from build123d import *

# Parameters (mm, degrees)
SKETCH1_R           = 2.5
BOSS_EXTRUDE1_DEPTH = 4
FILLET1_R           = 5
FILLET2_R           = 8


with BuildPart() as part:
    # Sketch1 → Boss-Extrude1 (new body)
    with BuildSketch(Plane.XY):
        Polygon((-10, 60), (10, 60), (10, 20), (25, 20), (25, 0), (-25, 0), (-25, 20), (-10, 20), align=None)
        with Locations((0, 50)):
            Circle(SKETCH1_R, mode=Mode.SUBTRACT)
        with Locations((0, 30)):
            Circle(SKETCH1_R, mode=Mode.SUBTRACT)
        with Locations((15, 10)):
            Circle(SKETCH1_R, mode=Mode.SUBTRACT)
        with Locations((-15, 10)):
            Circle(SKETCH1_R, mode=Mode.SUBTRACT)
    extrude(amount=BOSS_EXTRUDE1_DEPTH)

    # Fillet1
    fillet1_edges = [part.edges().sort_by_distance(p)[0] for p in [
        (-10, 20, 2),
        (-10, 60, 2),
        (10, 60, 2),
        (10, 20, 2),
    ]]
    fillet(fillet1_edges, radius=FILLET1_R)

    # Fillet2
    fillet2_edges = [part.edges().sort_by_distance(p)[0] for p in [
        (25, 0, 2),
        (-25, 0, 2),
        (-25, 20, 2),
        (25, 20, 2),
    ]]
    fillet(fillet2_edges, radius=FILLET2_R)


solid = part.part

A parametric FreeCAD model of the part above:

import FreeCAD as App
import Part
import Sketcher

V = App.Vector
Q = App.Units.Quantity


def edges_at(feature, points):
    """Names of the edges that pass closest to the given points."""
    edges = feature.Shape.Edges
    near = lambda p: min(range(len(edges)), key=lambda i: edges[i].distToShape(Part.Vertex(*p))[0])
    return sorted({f"Edge{near(p) + 1}" for p in points})

doc = App.newDocument("Part")
body = doc.addObject("PartDesign::Body", "Body")

# Sketch on XY plane
sketch1 = body.newObject("Sketcher::SketchObject", "Sketch")
sketch1.AttachmentSupport = (doc.getObject("XY_Plane"), [""])
sketch1.MapMode = "FlatFace"
sketch1.addGeometry([
    Part.LineSegment(V(10, 60, 0), V(-10, 60, 0)),  # 0
    Part.LineSegment(V(-10, 60, 0), V(-10, 20, 0)),  # 1
    Part.LineSegment(V(-10, 20, 0), V(-25, 20, 0)),  # 2
    Part.LineSegment(V(-25, 20, 0), V(-25, 0, 0)),  # 3
    Part.LineSegment(V(-25, 0, 0), V(25, 0, 0)),  # 4
    Part.LineSegment(V(25, 0, 0), V(25, 20, 0)),  # 5
    Part.LineSegment(V(25, 20, 0), V(10, 20, 0)),  # 6
    Part.LineSegment(V(10, 20, 0), V(10, 60, 0)),  # 7
    Part.Circle(V(15, 10, 0), V(0, 0, 1), 2.5),  # 8
    Part.Circle(V(-15, 10, 0), V(0, 0, 1), 2.5),  # 9
    Part.Circle(V(0, 30, 0), V(0, 0, 1), 2.5),  # 10
    Part.Circle(V(0, 50, 0), V(0, 0, 1), 2.5),  # 11
], False)
sketch1.addConstraint([
    Sketcher.Constraint("Coincident", 0, 2, 1, 1),
    Sketcher.Constraint("Coincident", 1, 2, 2, 1),
    Sketcher.Constraint("Coincident", 2, 2, 3, 1),
    Sketcher.Constraint("Coincident", 3, 2, 4, 1),
    Sketcher.Constraint("Coincident", 4, 2, 5, 1),
    Sketcher.Constraint("Coincident", 5, 2, 6, 1),
    Sketcher.Constraint("Coincident", 6, 2, 7, 1),
    Sketcher.Constraint("Coincident", 7, 2, 0, 1),
    Sketcher.Constraint("Horizontal", 0),
    Sketcher.Constraint("Vertical", 1),
    Sketcher.Constraint("Horizontal", 2),
    Sketcher.Constraint("Vertical", 3),
    Sketcher.Constraint("Horizontal", 4),
    Sketcher.Constraint("Vertical", 5),
    Sketcher.Constraint("Horizontal", 6),
    Sketcher.Constraint("Vertical", 7),
    Sketcher.Constraint("Equal", 8, 9),
    Sketcher.Constraint("Equal", 9, 10),
    Sketcher.Constraint("Equal", 10, 11),
    Sketcher.Constraint("Symmetric", 3, 2, 4, 2, -1, 1),
    Sketcher.Constraint("Symmetric", 8, 3, 9, 3, -2),
    Sketcher.Constraint("Symmetric", 1, 2, 6, 2, -2),
    Sketcher.Constraint("PointOnObject", 10, 3, -2),
    Sketcher.Constraint("PointOnObject", 11, 3, -2),
    Sketcher.Constraint("Equal", 0, 3),
    Sketcher.Constraint("Diameter", 8, Q("5 mm")),
    Sketcher.Constraint("DistanceX", 0, 2, 0, 1, Q("20 mm")),
    Sketcher.Constraint("DistanceX", 2, 2, 2, 1, Q("15 mm")),
    Sketcher.Constraint("DistanceY", 1, 2, 1, 1, Q("40 mm")),
    Sketcher.Constraint("DistanceX", -1, 1, 8, 3, Q("15 mm")),
    Sketcher.Constraint("DistanceY", -1, 1, 8, 3, Q("10 mm")),
    Sketcher.Constraint("DistanceY", -1, 1, 10, 3, Q("30 mm")),
    Sketcher.Constraint("DistanceY", -1, 1, 11, 3, Q("50 mm")),
])
pad1 = body.newObject("PartDesign::Pad", "Pad")
pad1.Profile = sketch1
pad1.Length = 4
doc.recompute()

fillet = body.newObject("PartDesign::Fillet", "Fillet")
fillet.Base = (pad1, edges_at(pad1, [
    (-10, 20, 2),
    (-10, 60, 2),
    (10, 60, 2),
    (10, 20, 2),
]))
fillet.Radius = 5
doc.recompute()

fillet2 = body.newObject("PartDesign::Fillet", "Fillet001")
fillet2.Base = (fillet, edges_at(fillet, [
    (25, 0, 2),
    (-25, 0, 2),
    (-25, 20, 2),
    (25, 20, 2),
]))
fillet2.Radius = 8

doc.recompute()
